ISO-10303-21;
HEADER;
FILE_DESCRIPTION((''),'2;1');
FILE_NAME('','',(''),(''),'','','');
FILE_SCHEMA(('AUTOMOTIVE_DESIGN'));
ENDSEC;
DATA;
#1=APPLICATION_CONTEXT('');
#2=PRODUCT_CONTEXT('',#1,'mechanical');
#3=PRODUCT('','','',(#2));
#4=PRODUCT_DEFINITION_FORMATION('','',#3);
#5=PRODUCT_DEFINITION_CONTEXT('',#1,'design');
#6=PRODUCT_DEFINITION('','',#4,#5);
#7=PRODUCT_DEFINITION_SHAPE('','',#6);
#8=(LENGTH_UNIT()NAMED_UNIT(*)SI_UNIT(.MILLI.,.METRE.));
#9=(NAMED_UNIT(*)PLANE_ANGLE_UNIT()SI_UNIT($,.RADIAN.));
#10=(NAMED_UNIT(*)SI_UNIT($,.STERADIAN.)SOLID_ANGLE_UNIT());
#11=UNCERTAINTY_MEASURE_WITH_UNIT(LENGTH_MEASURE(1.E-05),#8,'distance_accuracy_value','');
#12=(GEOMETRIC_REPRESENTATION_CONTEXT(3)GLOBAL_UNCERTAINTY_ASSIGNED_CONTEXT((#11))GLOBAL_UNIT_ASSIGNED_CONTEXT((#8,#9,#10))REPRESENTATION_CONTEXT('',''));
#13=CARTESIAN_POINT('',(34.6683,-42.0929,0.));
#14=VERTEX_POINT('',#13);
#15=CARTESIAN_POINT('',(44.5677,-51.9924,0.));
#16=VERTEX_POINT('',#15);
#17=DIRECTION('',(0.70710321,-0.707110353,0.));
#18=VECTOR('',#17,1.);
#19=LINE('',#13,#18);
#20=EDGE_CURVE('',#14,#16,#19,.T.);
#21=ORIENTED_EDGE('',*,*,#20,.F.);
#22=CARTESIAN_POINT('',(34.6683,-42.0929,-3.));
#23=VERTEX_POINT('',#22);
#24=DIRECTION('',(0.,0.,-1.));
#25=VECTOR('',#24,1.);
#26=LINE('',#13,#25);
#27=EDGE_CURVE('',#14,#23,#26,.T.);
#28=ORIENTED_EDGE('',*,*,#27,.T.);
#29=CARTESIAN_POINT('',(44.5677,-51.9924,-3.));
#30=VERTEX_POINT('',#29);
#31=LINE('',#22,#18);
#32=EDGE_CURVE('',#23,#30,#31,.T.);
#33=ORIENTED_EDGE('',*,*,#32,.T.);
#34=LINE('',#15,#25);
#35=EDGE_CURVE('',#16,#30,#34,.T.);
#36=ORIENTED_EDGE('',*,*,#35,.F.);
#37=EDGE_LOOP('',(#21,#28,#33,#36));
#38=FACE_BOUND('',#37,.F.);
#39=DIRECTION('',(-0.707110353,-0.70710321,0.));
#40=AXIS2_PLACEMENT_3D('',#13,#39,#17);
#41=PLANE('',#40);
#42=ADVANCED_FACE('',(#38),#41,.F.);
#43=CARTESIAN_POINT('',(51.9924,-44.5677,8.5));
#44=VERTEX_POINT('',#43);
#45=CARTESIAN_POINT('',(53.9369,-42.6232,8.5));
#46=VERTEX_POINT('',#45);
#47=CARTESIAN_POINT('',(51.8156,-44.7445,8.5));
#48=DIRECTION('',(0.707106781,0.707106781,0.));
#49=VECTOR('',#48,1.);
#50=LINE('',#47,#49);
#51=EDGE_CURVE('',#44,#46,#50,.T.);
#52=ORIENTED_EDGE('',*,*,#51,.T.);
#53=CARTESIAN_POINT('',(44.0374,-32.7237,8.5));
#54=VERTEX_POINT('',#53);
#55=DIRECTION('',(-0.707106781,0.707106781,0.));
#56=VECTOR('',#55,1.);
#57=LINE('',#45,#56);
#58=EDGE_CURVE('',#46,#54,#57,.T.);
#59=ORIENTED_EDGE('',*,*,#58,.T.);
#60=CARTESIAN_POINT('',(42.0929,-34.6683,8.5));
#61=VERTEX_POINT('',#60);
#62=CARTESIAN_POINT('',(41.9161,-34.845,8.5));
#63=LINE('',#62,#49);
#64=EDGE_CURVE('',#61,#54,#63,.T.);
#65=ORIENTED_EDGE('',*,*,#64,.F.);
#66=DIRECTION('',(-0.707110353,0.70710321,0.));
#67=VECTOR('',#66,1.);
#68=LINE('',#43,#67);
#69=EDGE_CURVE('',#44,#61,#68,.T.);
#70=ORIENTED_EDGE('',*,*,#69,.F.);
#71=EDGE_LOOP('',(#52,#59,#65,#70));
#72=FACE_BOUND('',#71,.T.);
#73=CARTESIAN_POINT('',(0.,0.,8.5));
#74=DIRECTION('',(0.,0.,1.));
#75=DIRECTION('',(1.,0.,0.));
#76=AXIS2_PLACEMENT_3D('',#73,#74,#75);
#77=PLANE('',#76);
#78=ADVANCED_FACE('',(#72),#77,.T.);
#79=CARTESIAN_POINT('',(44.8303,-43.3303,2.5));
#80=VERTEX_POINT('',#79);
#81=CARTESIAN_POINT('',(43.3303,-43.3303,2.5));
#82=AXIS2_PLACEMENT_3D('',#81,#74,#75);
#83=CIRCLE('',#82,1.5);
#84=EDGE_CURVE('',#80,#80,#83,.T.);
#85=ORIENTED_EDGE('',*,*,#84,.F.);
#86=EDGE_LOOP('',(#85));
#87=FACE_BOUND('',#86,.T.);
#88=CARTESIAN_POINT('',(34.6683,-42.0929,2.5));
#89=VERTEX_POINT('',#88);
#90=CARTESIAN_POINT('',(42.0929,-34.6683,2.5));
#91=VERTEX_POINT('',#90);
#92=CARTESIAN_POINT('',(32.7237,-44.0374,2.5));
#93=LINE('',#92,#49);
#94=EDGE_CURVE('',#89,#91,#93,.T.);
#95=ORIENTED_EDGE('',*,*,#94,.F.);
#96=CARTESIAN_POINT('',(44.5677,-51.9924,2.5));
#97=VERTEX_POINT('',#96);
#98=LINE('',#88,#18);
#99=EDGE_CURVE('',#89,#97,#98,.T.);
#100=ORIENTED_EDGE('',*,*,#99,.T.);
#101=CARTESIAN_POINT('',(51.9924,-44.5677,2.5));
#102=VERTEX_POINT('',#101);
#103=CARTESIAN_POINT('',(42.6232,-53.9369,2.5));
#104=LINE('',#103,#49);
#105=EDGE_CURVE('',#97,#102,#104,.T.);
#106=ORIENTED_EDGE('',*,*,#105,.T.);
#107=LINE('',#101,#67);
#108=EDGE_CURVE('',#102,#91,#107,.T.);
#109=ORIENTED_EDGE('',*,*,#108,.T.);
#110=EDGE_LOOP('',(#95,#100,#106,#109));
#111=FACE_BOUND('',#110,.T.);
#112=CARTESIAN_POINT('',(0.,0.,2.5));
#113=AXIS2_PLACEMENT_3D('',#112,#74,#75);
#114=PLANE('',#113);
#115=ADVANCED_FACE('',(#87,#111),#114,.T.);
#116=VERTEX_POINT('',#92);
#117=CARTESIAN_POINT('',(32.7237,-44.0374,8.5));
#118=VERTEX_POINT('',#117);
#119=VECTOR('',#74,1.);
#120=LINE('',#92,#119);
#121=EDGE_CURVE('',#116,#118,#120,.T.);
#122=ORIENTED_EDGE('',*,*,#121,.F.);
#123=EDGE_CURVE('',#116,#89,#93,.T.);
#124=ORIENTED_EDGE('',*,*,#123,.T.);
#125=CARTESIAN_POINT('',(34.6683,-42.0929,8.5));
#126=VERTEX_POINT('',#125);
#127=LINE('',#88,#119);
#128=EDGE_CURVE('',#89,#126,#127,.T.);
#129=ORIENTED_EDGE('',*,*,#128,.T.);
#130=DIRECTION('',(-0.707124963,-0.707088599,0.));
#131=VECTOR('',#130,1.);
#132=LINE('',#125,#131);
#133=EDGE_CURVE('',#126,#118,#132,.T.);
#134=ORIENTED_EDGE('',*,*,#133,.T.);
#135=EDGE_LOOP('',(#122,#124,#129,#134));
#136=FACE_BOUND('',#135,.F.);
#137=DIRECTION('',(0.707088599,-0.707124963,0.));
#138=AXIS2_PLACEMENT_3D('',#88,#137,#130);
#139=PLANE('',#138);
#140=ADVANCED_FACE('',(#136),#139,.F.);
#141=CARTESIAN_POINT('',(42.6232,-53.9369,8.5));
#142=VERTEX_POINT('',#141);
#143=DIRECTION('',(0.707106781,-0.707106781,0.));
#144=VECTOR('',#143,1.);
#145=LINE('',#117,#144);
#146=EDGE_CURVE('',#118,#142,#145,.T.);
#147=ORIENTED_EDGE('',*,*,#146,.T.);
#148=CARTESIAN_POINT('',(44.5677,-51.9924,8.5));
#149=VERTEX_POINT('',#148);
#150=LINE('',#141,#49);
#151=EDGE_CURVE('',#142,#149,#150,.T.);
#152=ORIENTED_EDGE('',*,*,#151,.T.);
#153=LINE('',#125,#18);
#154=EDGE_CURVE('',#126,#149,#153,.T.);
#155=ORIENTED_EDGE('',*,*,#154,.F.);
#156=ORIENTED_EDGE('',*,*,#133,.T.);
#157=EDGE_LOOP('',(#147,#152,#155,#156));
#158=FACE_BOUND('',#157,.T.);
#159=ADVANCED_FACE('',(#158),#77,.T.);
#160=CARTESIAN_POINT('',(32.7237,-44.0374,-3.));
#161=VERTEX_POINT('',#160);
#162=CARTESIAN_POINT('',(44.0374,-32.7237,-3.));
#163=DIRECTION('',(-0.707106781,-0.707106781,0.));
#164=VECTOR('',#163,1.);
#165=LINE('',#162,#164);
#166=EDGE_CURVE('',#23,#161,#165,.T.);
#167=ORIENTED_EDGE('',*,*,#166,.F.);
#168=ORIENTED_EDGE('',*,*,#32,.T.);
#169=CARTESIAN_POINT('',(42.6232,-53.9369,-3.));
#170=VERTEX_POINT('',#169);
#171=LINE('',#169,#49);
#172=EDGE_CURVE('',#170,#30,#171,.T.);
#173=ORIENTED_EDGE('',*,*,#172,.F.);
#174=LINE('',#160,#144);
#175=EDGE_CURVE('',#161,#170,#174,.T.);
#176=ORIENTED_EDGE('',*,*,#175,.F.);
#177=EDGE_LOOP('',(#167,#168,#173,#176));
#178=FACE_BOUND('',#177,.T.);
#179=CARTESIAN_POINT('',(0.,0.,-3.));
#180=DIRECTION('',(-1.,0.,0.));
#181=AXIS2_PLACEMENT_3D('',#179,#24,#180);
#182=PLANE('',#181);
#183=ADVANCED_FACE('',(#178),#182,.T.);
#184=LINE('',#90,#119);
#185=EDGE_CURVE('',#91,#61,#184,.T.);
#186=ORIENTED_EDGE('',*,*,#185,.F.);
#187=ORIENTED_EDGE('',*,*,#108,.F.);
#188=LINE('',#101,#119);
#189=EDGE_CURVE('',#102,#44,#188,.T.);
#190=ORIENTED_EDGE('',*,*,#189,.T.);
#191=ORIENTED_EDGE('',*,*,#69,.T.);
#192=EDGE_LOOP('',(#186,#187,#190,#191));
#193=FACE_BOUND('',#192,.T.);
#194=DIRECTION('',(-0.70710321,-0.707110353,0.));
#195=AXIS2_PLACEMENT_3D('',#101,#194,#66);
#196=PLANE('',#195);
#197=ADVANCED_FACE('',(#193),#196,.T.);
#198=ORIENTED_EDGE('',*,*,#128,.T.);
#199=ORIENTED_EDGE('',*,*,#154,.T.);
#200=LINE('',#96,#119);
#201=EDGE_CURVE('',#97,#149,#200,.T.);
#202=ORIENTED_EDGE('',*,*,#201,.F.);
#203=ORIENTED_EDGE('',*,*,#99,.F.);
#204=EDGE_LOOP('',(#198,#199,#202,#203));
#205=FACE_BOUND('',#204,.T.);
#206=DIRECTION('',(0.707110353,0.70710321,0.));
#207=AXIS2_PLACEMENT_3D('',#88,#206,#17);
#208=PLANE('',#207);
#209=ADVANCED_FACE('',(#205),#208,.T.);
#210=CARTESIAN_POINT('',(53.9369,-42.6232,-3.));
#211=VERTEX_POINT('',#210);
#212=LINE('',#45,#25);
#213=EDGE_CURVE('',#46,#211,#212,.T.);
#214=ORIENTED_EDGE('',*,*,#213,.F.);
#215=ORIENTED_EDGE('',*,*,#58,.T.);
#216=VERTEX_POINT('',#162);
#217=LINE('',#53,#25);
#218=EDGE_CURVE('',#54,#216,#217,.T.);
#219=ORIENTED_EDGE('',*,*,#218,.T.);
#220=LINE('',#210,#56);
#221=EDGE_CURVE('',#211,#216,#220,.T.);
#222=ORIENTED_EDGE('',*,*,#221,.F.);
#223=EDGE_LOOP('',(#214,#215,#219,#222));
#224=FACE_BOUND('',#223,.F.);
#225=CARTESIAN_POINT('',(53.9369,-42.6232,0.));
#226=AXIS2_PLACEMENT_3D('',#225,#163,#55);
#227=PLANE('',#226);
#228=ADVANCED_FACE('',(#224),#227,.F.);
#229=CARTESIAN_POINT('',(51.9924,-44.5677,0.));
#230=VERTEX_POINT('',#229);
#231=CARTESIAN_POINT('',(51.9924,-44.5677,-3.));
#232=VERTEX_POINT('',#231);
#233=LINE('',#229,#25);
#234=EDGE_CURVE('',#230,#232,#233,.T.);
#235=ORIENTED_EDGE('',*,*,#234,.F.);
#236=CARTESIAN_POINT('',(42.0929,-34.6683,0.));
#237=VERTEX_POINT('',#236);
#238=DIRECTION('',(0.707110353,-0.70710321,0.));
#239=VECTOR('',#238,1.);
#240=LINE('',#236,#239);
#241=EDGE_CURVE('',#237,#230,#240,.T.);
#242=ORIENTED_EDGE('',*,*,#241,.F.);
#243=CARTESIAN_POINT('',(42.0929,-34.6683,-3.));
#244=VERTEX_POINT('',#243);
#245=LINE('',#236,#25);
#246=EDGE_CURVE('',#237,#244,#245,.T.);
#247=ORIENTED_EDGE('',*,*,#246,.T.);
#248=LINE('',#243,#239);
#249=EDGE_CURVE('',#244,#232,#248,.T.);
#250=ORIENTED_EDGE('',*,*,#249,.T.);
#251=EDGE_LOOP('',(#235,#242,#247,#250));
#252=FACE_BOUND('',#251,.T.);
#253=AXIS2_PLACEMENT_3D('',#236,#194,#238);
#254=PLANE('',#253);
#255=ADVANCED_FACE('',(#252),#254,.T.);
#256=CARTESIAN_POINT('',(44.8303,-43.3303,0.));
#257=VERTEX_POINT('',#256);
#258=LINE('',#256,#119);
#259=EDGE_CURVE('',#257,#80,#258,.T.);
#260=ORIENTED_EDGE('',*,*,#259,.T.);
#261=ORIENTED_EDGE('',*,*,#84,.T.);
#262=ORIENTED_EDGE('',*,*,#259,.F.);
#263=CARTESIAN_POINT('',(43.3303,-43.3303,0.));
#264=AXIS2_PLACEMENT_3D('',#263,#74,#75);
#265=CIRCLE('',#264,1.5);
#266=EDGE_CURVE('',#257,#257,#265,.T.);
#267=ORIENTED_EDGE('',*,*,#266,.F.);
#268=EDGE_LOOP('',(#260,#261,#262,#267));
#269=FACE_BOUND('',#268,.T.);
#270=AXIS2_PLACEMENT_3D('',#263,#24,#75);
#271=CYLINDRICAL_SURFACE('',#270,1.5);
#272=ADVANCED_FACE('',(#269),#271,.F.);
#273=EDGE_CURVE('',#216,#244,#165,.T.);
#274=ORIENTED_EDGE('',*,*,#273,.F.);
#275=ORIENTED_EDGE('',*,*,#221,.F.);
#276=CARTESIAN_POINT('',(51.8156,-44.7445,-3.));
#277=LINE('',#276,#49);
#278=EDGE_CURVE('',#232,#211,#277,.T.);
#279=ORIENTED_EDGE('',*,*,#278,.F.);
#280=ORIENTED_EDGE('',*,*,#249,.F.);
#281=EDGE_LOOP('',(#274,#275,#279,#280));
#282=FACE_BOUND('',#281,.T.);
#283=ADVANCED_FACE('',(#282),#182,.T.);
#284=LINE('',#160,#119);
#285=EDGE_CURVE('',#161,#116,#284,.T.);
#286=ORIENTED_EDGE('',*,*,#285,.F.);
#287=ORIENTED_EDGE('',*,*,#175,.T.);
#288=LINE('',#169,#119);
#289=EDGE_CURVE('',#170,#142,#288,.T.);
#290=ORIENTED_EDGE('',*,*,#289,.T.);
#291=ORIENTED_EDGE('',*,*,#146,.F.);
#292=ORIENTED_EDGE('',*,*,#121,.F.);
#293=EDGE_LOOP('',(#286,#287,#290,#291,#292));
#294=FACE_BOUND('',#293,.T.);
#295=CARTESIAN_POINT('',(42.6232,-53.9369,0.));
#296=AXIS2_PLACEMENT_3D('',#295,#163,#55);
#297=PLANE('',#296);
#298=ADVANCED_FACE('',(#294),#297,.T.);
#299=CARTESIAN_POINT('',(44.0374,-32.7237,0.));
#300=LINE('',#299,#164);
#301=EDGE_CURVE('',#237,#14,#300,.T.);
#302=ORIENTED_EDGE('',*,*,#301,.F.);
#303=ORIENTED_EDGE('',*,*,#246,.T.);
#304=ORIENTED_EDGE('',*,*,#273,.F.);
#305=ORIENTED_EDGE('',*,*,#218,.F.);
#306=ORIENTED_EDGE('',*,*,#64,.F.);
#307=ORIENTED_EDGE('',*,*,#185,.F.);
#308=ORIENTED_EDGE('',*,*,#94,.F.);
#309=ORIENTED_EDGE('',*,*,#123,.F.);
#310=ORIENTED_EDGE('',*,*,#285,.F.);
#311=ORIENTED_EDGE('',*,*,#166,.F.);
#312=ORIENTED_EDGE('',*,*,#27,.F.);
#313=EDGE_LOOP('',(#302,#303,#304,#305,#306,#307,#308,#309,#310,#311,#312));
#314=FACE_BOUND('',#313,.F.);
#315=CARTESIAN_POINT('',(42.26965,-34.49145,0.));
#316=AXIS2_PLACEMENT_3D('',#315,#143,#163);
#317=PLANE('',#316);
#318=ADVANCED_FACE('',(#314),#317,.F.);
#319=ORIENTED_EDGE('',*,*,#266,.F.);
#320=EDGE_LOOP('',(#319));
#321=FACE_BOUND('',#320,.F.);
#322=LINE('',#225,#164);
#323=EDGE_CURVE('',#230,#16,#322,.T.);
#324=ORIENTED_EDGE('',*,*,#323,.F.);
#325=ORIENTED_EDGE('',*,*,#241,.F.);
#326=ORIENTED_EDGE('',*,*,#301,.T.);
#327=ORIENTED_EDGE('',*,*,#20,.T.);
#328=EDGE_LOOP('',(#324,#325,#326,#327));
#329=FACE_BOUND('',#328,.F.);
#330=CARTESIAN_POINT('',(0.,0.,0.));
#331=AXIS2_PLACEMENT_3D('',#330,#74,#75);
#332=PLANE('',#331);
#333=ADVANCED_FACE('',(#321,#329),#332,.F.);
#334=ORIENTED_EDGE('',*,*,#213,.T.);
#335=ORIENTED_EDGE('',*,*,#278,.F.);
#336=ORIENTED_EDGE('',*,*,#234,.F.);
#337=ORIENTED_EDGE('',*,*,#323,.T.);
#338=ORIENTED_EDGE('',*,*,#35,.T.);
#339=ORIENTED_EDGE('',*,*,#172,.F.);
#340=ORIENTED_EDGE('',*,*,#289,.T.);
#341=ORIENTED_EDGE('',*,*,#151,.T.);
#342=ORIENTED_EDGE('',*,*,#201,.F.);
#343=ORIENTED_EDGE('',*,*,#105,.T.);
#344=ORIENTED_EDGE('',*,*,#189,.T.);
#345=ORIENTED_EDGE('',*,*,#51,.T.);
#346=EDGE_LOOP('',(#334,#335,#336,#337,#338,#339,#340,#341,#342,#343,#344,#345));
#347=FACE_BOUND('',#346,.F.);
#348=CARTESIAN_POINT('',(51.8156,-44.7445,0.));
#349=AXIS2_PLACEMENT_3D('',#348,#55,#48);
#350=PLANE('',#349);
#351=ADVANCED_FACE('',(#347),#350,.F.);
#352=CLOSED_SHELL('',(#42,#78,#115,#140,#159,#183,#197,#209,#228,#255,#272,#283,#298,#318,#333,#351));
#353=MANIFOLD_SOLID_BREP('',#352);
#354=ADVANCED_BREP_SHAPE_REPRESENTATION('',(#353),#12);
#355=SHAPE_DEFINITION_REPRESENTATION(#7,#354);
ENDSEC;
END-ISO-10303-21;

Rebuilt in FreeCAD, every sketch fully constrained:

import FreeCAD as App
import Part
import Sketcher
Q = App.Units.Quantity


def add_polygon(sketch, points):
    """Adds a closed chain of lines whose ends are joined by coincident constraints."""
    first, n = sketch.GeometryCount, len(points)
    for a, b in zip(points, points[1:] + points[:1]):
        sketch.addGeometry(Part.LineSegment(App.Vector(*a, 0), App.Vector(*b, 0)), False)
    for i in range(n):
        sketch.addConstraint(Sketcher.Constraint("Coincident", first + i, 2, first + (i + 1) % n, 1))

doc = App.newDocument("Part")
body = doc.addObject("PartDesign::Body", "Body")

# Sketch on XY plane
sketch1 = body.newObject("Sketcher::SketchObject", "Sketch")
sketch1.AttachmentSupport = (doc.getObject("XY_Plane"), [""])
sketch1.MapMode = "FlatFace"
add_polygon(sketch1, [(32.7237, -44.0374), (42.6232, -53.9369), (53.9369, -42.6232), (44.0374, -32.7237)])  # lines 0-3
sketch1.addGeometry(Part.Circle(App.Vector(43.3303, -43.3303, 0), App.Vector(0, 0, 1), 1.5), False)  # 4
sketch1.addConstraint([
    Sketcher.Constraint("Perpendicular", 0, 1),
    Sketcher.Constraint("Perpendicular", 1, 2),
    Sketcher.Constraint("Perpendicular", 2, 3),
    Sketcher.Constraint("Diameter", 4, 3.0),
    Sketcher.Constraint("Angle", 0, Q("-45 deg")),
    Sketcher.Constraint("Distance", 0, 14.0),
    Sketcher.Constraint("Distance", 1, 16.0),
    Sketcher.Constraint("DistanceY", 0, 2, -1, 1, 53.937),
    Sketcher.Constraint("DistanceX", -1, 1, 1, 2, 53.937),
    Sketcher.Constraint("DistanceX", 0, 2, 4, 3, 0.707),
    Sketcher.Constraint("DistanceY", 4, 3, 1, 2, 0.707),
])
pad1 = body.newObject("PartDesign::Pad", "Pad")
pad1.Profile = sketch1
pad1.Length = 2.5

# Sketch on XY plane
sketch2 = body.newObject("Sketcher::SketchObject", "Sketch001")
sketch2.AttachmentSupport = (doc.getObject("XY_Plane"), [""])
sketch2.MapMode = "FlatFace"
add_polygon(sketch2, [(42.6232, -53.9369), (32.7237, -44.0374), (34.6683, -42.0929), (44.5677, -51.9924)])  # lines 0-3
add_polygon(sketch2, [(51.9924, -44.5677), (42.09285, -34.66825), (44.0374, -32.7237), (53.9369, -42.6232)])  # lines 4-7
sketch2.addConstraint([
    Sketcher.Constraint("Perpendicular", 0, 1),
    Sketcher.Constraint("Perpendicular", 1, 2),
    Sketcher.Constraint("Perpendicular", 2, 3),
    Sketcher.Constraint("Perpendicular", 3, 4),
    Sketcher.Constraint("Perpendicular", 4, 5),
    Sketcher.Constraint("Perpendicular", 5, 6),
    Sketcher.Constraint("Perpendicular", 6, 7),
    Sketcher.Constraint("Equal", 2, 4),
    Sketcher.Constraint("Equal", 3, 5),
    Sketcher.Constraint("Angle", 0, Q("135 deg")),
    Sketcher.Constraint("Distance", 0, 14.0),
    Sketcher.Constraint("Distance", 1, 2.75),
    Sketcher.Constraint("DistanceY", 3, 2, -1, 1, 53.937),
    Sketcher.Constraint("DistanceX", -1, 1, 4, 2, 42.093),
    Sketcher.Constraint("DistanceY", 0, 2, 4, 2, 9.369),
    Sketcher.Constraint("DistanceX", -1, 1, 0, 2, 32.7237),
])
pad2 = body.newObject("PartDesign::Pad", "Pad001")
pad2.Profile = sketch2
pad2.Length = 3
pad2.Reversed = True

# Sketch on XY plane
sketch3 = body.newObject("Sketcher::SketchObject", "Sketch002")
sketch3.AttachmentSupport = (doc.getObject("XY_Plane"), [""])
sketch3.MapMode = "FlatFace"
sketch3.AttachmentOffset = App.Placement(App.Vector(0, 0, 2.5), App.Rotation())
add_polygon(sketch3, [(44.5677, -51.9924), (34.6683, -42.0929), (32.7237, -44.0374), (42.6232, -53.9369)])  # lines 0-3
add_polygon(sketch3, [(44.0374, -32.7237), (42.0929, -34.6683), (51.9924, -44.5677), (53.9369, -42.6232)])  # lines 4-7
sketch3.addConstraint([
    Sketcher.Constraint("Perpendicular", 0, 1),
    Sketcher.Constraint("Perpendicular", 1, 2),
    Sketcher.Constraint("Perpendicular", 2, 3),
    Sketcher.Constraint("Parallel", 3, 4),
    Sketcher.Constraint("Perpendicular", 4, 5),
    Sketcher.Constraint("Perpendicular", 5, 6),
    Sketcher.Constraint("Perpendicular", 6, 7),
    Sketcher.Constraint("Equal", 3, 4),
    Sketcher.Constraint("Equal", 2, 5),
    Sketcher.Constraint("Angle", 0, Q("134.9997 deg")),
    Sketcher.Constraint("Distance", 0, 14.0),
    Sketcher.Constraint("Distance", 1, 2.75),
    Sketcher.Constraint("DistanceY", 0, 2, -1, 1, 42.093),
    Sketcher.Constraint("DistanceX", -1, 1, 6, 2, 53.937),
    Sketcher.Constraint("DistanceX", 0, 2, 5, 2, 17.324),
    Sketcher.Constraint("DistanceY", 4, 2, -1, 1, 34.6682),
])
pad3 = body.newObject("PartDesign::Pad", "Pad002")
pad3.Profile = sketch3
pad3.Length = 6

doc.recompute()
